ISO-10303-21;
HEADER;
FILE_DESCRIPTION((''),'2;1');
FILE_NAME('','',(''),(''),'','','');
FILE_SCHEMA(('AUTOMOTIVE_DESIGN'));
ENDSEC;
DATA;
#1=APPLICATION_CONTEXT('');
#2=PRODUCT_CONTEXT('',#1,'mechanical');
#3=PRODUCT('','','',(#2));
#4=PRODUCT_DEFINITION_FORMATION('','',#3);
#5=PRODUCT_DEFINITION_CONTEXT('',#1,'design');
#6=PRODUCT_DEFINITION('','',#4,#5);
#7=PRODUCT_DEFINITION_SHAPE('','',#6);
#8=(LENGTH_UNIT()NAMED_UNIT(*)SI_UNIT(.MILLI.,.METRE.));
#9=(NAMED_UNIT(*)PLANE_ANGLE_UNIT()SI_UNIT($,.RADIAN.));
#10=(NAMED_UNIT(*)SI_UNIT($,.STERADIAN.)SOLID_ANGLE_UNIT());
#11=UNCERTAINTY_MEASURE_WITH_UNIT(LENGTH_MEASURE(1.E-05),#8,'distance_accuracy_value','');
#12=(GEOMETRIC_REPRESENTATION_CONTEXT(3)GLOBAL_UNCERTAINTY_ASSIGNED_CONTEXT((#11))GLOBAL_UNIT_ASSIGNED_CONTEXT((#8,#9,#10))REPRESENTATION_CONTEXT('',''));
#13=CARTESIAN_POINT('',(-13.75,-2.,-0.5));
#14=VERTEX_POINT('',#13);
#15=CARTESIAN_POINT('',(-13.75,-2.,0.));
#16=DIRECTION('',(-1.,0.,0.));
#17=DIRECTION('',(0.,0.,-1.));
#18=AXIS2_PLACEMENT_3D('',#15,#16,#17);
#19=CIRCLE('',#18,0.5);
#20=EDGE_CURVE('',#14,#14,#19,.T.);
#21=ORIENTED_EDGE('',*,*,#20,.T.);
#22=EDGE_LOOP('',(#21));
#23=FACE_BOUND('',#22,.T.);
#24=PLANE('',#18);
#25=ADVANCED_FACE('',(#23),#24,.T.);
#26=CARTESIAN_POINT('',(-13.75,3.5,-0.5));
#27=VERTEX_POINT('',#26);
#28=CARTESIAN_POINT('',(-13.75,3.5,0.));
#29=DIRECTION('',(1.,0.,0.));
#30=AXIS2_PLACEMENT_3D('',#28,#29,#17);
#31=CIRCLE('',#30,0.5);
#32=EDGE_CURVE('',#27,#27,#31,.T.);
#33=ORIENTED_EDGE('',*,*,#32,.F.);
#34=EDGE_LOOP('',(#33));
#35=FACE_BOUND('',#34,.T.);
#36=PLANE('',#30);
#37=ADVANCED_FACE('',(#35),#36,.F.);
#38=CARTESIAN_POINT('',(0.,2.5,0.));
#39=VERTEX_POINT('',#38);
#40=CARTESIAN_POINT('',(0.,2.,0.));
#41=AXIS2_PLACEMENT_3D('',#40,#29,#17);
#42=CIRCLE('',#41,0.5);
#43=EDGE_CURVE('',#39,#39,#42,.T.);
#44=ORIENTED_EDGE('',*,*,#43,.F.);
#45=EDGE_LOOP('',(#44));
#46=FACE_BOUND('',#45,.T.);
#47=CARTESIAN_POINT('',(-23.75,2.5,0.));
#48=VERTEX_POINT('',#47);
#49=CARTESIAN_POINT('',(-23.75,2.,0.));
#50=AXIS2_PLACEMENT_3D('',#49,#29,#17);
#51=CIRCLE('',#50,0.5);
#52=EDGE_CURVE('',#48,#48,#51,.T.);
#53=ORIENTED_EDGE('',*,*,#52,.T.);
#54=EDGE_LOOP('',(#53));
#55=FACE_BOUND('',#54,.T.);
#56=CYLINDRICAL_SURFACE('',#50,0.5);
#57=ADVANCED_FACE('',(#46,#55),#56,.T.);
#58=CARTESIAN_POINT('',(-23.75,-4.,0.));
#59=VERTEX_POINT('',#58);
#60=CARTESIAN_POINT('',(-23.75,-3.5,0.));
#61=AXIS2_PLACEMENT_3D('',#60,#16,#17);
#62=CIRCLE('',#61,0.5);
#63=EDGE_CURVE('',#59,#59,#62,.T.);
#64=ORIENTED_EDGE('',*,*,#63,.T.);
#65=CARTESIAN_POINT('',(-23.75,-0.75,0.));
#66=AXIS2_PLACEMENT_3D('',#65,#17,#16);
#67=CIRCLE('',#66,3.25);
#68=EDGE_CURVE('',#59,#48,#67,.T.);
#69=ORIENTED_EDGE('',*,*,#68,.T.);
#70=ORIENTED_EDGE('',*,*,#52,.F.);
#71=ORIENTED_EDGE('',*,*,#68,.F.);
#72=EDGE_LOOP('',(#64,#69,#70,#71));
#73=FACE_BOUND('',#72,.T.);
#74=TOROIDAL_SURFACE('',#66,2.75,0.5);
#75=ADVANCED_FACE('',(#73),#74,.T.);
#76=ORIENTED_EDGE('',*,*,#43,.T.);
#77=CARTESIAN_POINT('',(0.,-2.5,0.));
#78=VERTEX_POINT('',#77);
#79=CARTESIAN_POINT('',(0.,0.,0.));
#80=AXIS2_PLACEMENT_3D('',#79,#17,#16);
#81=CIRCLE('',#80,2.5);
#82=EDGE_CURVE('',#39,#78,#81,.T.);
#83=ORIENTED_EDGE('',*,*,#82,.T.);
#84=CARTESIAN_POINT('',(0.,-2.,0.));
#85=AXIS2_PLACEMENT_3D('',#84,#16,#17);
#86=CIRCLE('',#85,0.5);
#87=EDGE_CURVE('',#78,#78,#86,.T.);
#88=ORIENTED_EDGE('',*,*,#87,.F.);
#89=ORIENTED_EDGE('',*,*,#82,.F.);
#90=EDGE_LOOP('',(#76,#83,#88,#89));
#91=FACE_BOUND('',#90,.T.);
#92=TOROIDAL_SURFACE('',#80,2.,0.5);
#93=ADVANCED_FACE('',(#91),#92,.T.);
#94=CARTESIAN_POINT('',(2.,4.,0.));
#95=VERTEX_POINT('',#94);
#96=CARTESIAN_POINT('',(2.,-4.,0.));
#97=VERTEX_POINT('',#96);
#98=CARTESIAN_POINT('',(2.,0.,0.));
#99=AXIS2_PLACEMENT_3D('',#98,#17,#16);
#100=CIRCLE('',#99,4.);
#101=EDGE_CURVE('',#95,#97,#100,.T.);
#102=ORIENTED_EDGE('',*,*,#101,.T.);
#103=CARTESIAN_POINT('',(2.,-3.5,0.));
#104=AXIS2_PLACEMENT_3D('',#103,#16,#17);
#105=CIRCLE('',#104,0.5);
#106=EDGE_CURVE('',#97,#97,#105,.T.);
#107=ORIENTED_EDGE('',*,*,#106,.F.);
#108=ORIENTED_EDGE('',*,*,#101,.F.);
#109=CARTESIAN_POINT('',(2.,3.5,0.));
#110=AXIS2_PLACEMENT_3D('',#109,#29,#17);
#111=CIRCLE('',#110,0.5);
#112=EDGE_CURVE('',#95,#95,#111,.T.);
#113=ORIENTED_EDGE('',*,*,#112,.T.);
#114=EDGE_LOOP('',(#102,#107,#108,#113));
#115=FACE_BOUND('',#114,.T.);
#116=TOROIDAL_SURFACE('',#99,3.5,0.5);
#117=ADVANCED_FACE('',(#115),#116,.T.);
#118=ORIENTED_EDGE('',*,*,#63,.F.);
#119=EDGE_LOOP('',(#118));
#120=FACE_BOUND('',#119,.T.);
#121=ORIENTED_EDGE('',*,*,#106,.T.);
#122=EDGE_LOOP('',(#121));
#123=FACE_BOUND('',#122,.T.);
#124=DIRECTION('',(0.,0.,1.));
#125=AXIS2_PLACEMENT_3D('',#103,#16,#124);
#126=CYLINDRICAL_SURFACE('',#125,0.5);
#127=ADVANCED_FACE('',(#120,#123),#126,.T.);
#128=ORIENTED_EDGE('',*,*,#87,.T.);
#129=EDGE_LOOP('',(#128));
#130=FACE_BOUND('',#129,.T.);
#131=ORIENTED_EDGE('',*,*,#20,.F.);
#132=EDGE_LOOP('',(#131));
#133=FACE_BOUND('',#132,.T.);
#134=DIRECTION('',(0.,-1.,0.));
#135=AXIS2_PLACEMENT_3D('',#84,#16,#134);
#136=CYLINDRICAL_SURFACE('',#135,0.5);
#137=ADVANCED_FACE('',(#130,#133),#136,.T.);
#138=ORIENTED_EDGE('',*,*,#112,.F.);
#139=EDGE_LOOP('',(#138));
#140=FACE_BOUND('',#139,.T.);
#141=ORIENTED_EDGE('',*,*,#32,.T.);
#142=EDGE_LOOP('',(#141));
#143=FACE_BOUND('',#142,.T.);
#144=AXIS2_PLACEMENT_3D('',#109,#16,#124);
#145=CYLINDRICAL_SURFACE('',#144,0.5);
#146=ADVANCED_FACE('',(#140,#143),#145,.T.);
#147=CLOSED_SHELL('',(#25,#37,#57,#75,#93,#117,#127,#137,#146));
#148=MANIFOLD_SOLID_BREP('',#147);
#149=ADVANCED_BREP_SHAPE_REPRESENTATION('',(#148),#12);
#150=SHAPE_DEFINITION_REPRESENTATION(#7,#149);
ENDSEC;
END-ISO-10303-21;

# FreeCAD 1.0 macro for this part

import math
import FreeCAD as App
import Part
import Sketcher
from FreeCAD import Vector
Q = App.Units.Quantity

doc = App.newDocument("Part")
body = doc.addObject("PartDesign::Body", "Body")

# Sketch on YZ plane
sketch1 = body.newObject("Sketcher::SketchObject", "Sketch")
sketch1.AttachmentSupport = (doc.getObject("YZ_Plane"), [""])
sketch1.MapMode = "FlatFace"
sketch1.AttachmentOffset = App.Placement(Vector(0, 0, -13.75), App.Rotation())
sketch1.addGeometry(Part.Circle(Vector(3.5, 0, 0), Vector(0, 0, 1), 0.5), False)
sketch1.addConstraint([
    Sketcher.Constraint("PointOnObject", 0, 3, -1),
    Sketcher.Constraint("Diameter", 0, Q("1 mm")),
    Sketcher.Constraint("DistanceX", -1, 1, 0, 3, Q("3.5 mm")),
])

# Sketch on XY plane
sketch2 = body.newObject("Sketcher::SketchObject", "Sketch001")
sketch2.AttachmentSupport = (doc.getObject("XY_Plane"), [""])
sketch2.MapMode = "FlatFace"
sketch2.addGeometry([
    Part.LineSegment(Vector(-13.8, 3.5, 0), Vector(2, 3.5, 0)),  # 0
    Part.ArcOfCircle(Part.Circle(Vector(2, 0, 0), Vector(0, 0, 1), 3.5), math.radians(-90), math.radians(90)),  # 1
    Part.LineSegment(Vector(2, -3.5, 0), Vector(-23.8, -3.5, 0)),  # 2
    Part.ArcOfCircle(Part.Circle(Vector(-23.8, -0.8, 0), Vector(0, 0, 1), 2.8), math.radians(90), math.radians(270)),  # 3
    Part.LineSegment(Vector(-23.8, 2, 0), Vector(0, 2, 0)),  # 4
    Part.ArcOfCircle(Part.Circle(Vector(0, 0, 0), Vector(0, 0, 1), 2), math.radians(-90), math.radians(90)),  # 5
    Part.LineSegment(Vector(0, -2, 0), Vector(-13.8, -2, 0)),  # 6
], False)
sketch2.addConstraint([
    Sketcher.Constraint("Tangent", 0, 2, 1, 2),
    Sketcher.Constraint("Tangent", 1, 1, 2, 1),
    Sketcher.Constraint("Tangent", 2, 2, 3, 2),
    Sketcher.Constraint("Tangent", 3, 1, 4, 1),
    Sketcher.Constraint("Tangent", 4, 2, 5, 2),
    Sketcher.Constraint("Tangent", 5, 1, 6, 1),
    Sketcher.Constraint("Horizontal", 0),
    Sketcher.Constraint("Horizontal", 2),
    Sketcher.Constraint("Horizontal", 4),
    Sketcher.Constraint("Horizontal", 6),
    Sketcher.Constraint("Coincident", 5, 3, -1, 1),
    Sketcher.Constraint("PointOnObject", 1, 3, -1),
    Sketcher.Constraint("Vertical", 0, 1, 6, 2),
    Sketcher.Constraint("Radius", 5, Q("2 mm")),
    Sketcher.Constraint("Radius", 1, Q("3.5 mm")),
    Sketcher.Constraint("DistanceX", -1, 1, 1, 3, Q("2 mm")),
    Sketcher.Constraint("DistanceX", 3, 3, 0, 1, Q("10 mm")),
    Sketcher.Constraint("DistanceX", 0, 1, 0, 2, Q("15.75 mm")),
])
doc.recompute()

additivepipe = body.newObject("PartDesign::AdditivePipe", "AdditivePipe")
additivepipe.Profile = sketch1
additivepipe.Spine = (sketch2, ["Edge1", "Edge2", "Edge3", "Edge4", "Edge5", "Edge6", "Edge7"])

doc.recompute()
